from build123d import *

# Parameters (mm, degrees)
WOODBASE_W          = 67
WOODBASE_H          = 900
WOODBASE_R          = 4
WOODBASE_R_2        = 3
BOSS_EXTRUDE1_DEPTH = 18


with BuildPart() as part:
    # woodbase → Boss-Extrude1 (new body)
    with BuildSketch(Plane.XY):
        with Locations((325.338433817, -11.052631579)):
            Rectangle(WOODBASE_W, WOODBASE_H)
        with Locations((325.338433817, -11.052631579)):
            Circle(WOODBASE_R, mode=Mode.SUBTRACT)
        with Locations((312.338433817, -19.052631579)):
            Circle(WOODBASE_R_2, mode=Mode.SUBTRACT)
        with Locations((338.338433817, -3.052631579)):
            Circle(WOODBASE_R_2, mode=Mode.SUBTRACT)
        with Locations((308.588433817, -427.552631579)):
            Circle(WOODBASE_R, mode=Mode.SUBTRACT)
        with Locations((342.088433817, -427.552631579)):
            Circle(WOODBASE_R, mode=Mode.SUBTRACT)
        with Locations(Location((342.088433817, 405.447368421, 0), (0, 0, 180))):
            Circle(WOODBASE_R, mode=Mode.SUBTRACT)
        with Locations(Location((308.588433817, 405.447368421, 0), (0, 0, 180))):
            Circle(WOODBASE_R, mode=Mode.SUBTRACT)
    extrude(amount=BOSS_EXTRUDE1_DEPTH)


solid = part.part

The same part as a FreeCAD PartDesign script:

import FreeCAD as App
import Part
import Sketcher
from FreeCAD import Vector

doc = App.newDocument("Part")
body = doc.addObject("PartDesign::Body", "Body")

# Sketch on XY plane
sketch1 = body.newObject("Sketcher::SketchObject", "Sketch")
sketch1.AttachmentSupport = (doc.getObject("XY_Plane"), [""])
sketch1.MapMode = "FlatFace"
sketch1.addGeometry([
    Part.LineSegment(Vector(291.838434, 438.947368, 0), Vector(291.838434, -461.052632, 0)),  # 0
    Part.LineSegment(Vector(291.838434, -461.052632, 0), Vector(358.838434, -461.052632, 0)),  # 1
    Part.LineSegment(Vector(358.838434, -461.052632, 0), Vector(358.838434, 438.947368, 0)),  # 2
    Part.LineSegment(Vector(358.838434, 438.947368, 0), Vector(291.838434, 438.947368, 0)),  # 3
    Part.Circle(Vector(308.588434, -427.552632, 0), Vector(0, 0, 1), 4),  # 4
    Part.Circle(Vector(312.338434, -19.052632, 0), Vector(0, 0, 1), 3),  # 5
    Part.Circle(Vector(342.088434, -427.552632, 0), Vector(0, 0, 1), 4),  # 6
    Part.Circle(Vector(325.338434, -11.052632, 0), Vector(0, 0, 1), 4),  # 7
    Part.Circle(Vector(308.588434, 405.447368, 0), Vector(0, 0, 1), 4),  # 8
    Part.Circle(Vector(338.338434, -3.052632, 0), Vector(0, 0, 1), 3),  # 9
    Part.Circle(Vector(342.088434, 405.447368, 0), Vector(0, 0, 1), 4),  # 10
], False)
sketch1.addConstraint([
    Sketcher.Constraint("Coincident", 0, 2, 1, 1),
    Sketcher.Constraint("Coincident", 1, 2, 2, 1),
    Sketcher.Constraint("Coincident", 2, 2, 3, 1),
    Sketcher.Constraint("Coincident", 3, 2, 0, 1),
    Sketcher.Constraint("Vertical", 0),
    Sketcher.Constraint("Horizontal", 1),
    Sketcher.Constraint("Vertical", 2),
    Sketcher.Constraint("Horizontal", 3),
    Sketcher.Constraint("Equal", 4, 6),
    Sketcher.Constraint("Equal", 6, 7),
    Sketcher.Constraint("Equal", 7, 8),
    Sketcher.Constraint("Equal", 5, 9),
    Sketcher.Constraint("Equal", 8, 10),
    Sketcher.Constraint("Horizontal", 4, 3, 6, 3),
    Sketcher.Constraint("Horizontal", 8, 3, 10, 3),
    Sketcher.Constraint("Vertical", 4, 3, 8, 3),
    Sketcher.Constraint("Vertical", 6, 3, 10, 3),
    Sketcher.Constraint("Diameter", 4, 8.0),
    Sketcher.Constraint("Diameter", 5, 6.0),
    Sketcher.Constraint("DistanceX", 1, 1, 1, 2, 67.0),
    Sketcher.Constraint("DistanceY", 0, 2, 0, 1, 900.0),
    Sketcher.Constraint("DistanceX", 5, 3, 7, 3, 13.0),
    Sketcher.Constraint("DistanceY", 5, 3, 7, 3, 8.0),
    Sketcher.Constraint("DistanceY", 4, 3, 8, 3, 833.0),
    Sketcher.Constraint("DistanceX", 7, 3, 9, 3, 13.0),
    Sketcher.Constraint("DistanceY", 7, 3, 9, 3, 8.0),
    Sketcher.Constraint("DistanceY", 0, 2, 5, 3, 442.0),
    Sketcher.Constraint("DistanceY", 4, 3, 5, 3, 408.5),
    Sketcher.Constraint("DistanceX", 4, 3, 6, 3, 33.5),
    Sketcher.Constraint("DistanceX", 0, 2, 5, 3, 20.5),
    Sketcher.Constraint("DistanceX", 4, 3, 5, 3, 3.75),
    Sketcher.Constraint("DistanceY", 4, 3, -1, 1, 427.552632),
    Sketcher.Constraint("DistanceX", -1, 1, 4, 3, 308.588434),
])
pad1 = body.newObject("PartDesign::Pad", "Pad")
pad1.Profile = sketch1
pad1.Length = 18

doc.recompute()
